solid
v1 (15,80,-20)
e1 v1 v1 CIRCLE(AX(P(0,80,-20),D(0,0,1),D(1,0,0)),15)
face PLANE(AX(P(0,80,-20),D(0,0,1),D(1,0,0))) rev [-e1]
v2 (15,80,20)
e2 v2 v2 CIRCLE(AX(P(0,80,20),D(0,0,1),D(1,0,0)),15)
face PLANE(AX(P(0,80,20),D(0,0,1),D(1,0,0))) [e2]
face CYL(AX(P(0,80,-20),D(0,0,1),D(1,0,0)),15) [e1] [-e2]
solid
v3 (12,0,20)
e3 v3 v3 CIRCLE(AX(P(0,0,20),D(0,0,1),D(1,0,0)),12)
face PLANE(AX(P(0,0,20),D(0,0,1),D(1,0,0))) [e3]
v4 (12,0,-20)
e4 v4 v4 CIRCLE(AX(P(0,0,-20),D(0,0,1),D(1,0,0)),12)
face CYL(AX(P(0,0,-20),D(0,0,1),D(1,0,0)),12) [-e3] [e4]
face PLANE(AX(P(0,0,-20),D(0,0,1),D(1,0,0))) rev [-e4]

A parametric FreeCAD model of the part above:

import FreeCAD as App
import Part
import Sketcher

V = App.Vector

doc = App.newDocument("Part")
body = doc.addObject("PartDesign::Body", "Body")

sketch1 = doc.addObject("Sketcher::SketchObject", "Sketch")
body.addObject(sketch1)
sketch1.AttachmentSupport = (doc.XY_Plane, [""])
sketch1.MapMode = "FlatFace"
sketch1.addGeometry(Part.Circle(V(0, 0, 0), V(0, 0, 1), 12), False)
sketch1.addConstraint([
    Sketcher.Constraint("Coincident", 0, 3, -1, 1),
    Sketcher.Constraint("Diameter", 0, 24.0),
])
pad1 = doc.addObject("PartDesign::Pad", "Pad")
body.addObject(pad1)
pad1.Profile = sketch1
pad1.Type = "TwoLengths"
pad1.Length = 20
pad1.Length2 = 20
body2 = doc.addObject("PartDesign::Body", "Body001")

sketch2 = doc.addObject("Sketcher::SketchObject", "Sketch001")
body2.addObject(sketch2)
sketch2.AttachmentSupport = (doc.getObject("XY_Plane001"), [""])
sketch2.MapMode = "FlatFace"
sketch2.addGeometry(Part.Circle(V(0, 80, 0), V(0, 0, 1), 15), False)
sketch2.addConstraint([
    Sketcher.Constraint("PointOnObject", 0, 3, -2),
    Sketcher.Constraint("Diameter", 0, 30.0),
    Sketcher.Constraint("DistanceY", -1, 1, 0, 3, 80.0),
])
pad2 = doc.addObject("PartDesign::Pad", "Pad001")
body2.addObject(pad2)
pad2.Profile = sketch2
pad2.Type = "TwoLengths"
pad2.Length = 20
pad2.Length2 = 20

doc.recompute()
